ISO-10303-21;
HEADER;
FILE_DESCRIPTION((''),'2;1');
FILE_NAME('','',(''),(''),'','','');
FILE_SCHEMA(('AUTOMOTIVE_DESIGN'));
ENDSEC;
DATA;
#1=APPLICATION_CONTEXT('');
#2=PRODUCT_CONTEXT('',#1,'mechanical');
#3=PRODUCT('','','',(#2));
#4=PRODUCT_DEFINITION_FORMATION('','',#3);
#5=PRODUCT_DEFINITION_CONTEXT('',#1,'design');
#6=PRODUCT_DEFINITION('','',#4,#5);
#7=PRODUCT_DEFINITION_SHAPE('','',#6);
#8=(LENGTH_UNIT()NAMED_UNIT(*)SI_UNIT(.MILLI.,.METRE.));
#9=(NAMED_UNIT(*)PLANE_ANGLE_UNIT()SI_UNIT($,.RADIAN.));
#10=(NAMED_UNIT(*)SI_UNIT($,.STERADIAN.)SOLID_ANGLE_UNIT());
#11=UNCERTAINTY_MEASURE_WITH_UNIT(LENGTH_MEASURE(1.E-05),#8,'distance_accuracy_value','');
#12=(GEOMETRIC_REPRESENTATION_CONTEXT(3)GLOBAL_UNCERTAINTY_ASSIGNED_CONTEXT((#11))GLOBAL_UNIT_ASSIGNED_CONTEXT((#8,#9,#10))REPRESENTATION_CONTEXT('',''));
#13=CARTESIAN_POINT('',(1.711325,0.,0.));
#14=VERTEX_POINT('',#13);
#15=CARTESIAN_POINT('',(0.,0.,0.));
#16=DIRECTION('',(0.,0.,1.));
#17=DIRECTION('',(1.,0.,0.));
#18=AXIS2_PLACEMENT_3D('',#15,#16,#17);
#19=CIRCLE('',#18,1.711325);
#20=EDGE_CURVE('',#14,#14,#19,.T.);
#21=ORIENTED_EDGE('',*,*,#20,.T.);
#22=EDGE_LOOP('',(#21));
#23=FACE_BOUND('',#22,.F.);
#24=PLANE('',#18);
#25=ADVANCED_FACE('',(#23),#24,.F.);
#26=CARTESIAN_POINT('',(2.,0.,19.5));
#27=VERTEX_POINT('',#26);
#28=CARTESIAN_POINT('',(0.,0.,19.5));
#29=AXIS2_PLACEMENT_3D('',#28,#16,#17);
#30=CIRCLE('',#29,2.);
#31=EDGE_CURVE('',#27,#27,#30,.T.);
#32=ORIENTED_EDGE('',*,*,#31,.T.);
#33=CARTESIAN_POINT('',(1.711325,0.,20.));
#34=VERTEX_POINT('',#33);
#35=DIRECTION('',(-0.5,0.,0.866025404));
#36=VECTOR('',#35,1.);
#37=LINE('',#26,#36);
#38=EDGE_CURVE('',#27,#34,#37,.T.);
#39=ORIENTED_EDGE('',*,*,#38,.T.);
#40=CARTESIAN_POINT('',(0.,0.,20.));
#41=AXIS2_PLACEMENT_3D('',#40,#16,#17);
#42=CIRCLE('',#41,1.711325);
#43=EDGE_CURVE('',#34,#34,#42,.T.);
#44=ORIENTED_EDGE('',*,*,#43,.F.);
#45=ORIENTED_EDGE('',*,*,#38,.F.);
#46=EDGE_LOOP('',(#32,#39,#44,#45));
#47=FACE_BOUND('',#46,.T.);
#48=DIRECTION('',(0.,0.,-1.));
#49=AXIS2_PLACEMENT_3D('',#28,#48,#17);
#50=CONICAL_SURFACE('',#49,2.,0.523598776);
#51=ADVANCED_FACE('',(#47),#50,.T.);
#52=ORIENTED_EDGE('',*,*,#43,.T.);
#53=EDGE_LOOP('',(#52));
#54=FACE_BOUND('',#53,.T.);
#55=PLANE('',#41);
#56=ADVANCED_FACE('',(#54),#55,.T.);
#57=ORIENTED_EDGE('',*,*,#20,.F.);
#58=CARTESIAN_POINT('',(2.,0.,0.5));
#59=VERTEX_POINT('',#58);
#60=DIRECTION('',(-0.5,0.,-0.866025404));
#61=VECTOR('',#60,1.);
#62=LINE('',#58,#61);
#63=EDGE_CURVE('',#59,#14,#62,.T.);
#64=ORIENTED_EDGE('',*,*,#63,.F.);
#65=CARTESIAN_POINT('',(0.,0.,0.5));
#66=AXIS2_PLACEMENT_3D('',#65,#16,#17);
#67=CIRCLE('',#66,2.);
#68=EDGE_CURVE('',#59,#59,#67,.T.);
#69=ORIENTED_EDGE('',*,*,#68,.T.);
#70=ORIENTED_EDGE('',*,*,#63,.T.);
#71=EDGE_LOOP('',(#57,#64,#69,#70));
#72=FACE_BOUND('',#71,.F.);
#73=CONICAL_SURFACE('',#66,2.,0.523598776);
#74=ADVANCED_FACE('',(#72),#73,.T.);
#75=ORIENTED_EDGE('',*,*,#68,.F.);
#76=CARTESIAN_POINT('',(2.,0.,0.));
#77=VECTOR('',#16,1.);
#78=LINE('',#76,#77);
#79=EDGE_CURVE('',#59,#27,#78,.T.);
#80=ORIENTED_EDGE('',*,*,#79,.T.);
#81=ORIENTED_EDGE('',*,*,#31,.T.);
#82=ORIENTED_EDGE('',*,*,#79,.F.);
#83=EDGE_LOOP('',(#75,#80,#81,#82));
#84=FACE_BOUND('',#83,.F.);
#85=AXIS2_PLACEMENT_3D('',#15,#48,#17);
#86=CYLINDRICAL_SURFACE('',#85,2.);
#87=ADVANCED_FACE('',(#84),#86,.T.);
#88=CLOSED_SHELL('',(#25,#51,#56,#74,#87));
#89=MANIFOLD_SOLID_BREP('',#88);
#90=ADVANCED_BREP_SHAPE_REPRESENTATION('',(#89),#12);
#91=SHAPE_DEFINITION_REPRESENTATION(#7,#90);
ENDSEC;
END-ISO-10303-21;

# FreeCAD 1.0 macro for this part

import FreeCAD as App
import Part
import Sketcher
Q = App.Units.Quantity


def edges_at(feature, points):
    """Names of the edges that pass closest to the given points."""
    edges = feature.Shape.Edges
    near = lambda p: min(range(len(edges)), key=lambda i: edges[i].distToShape(Part.Vertex(*p))[0])
    return sorted({f"Edge{near(p) + 1}" for p in points})

doc = App.newDocument("Part")
body = doc.addObject("PartDesign::Body", "Body")

# Sketch on XY plane
sketch1 = body.newObject("Sketcher::SketchObject", "Sketch")
sketch1.AttachmentSupport = (doc.getObject("XY_Plane"), [""])
sketch1.MapMode = "FlatFace"
sketch1.addGeometry(Part.Circle(App.Vector(0, 0, 0), App.Vector(0, 0, 1), 2), False)
sketch1.addConstraint([
    Sketcher.Constraint("Coincident", 0, 3, -1, 1),
    Sketcher.Constraint("Diameter", 0, Q("4 mm")),
])
pad1 = body.newObject("PartDesign::Pad", "Pad")
pad1.Profile = sketch1
pad1.Length = 20
doc.recompute()

chamfer = body.newObject("PartDesign::Chamfer", "Chamfer")
chamfer.Base = (pad1, edges_at(pad1, [(-2, 0, 20), (-2, 0, 0)]))
chamfer.ChamferType = "Distance and Angle"
chamfer.Size = 0.5
chamfer.Angle = 30

doc.recompute()
